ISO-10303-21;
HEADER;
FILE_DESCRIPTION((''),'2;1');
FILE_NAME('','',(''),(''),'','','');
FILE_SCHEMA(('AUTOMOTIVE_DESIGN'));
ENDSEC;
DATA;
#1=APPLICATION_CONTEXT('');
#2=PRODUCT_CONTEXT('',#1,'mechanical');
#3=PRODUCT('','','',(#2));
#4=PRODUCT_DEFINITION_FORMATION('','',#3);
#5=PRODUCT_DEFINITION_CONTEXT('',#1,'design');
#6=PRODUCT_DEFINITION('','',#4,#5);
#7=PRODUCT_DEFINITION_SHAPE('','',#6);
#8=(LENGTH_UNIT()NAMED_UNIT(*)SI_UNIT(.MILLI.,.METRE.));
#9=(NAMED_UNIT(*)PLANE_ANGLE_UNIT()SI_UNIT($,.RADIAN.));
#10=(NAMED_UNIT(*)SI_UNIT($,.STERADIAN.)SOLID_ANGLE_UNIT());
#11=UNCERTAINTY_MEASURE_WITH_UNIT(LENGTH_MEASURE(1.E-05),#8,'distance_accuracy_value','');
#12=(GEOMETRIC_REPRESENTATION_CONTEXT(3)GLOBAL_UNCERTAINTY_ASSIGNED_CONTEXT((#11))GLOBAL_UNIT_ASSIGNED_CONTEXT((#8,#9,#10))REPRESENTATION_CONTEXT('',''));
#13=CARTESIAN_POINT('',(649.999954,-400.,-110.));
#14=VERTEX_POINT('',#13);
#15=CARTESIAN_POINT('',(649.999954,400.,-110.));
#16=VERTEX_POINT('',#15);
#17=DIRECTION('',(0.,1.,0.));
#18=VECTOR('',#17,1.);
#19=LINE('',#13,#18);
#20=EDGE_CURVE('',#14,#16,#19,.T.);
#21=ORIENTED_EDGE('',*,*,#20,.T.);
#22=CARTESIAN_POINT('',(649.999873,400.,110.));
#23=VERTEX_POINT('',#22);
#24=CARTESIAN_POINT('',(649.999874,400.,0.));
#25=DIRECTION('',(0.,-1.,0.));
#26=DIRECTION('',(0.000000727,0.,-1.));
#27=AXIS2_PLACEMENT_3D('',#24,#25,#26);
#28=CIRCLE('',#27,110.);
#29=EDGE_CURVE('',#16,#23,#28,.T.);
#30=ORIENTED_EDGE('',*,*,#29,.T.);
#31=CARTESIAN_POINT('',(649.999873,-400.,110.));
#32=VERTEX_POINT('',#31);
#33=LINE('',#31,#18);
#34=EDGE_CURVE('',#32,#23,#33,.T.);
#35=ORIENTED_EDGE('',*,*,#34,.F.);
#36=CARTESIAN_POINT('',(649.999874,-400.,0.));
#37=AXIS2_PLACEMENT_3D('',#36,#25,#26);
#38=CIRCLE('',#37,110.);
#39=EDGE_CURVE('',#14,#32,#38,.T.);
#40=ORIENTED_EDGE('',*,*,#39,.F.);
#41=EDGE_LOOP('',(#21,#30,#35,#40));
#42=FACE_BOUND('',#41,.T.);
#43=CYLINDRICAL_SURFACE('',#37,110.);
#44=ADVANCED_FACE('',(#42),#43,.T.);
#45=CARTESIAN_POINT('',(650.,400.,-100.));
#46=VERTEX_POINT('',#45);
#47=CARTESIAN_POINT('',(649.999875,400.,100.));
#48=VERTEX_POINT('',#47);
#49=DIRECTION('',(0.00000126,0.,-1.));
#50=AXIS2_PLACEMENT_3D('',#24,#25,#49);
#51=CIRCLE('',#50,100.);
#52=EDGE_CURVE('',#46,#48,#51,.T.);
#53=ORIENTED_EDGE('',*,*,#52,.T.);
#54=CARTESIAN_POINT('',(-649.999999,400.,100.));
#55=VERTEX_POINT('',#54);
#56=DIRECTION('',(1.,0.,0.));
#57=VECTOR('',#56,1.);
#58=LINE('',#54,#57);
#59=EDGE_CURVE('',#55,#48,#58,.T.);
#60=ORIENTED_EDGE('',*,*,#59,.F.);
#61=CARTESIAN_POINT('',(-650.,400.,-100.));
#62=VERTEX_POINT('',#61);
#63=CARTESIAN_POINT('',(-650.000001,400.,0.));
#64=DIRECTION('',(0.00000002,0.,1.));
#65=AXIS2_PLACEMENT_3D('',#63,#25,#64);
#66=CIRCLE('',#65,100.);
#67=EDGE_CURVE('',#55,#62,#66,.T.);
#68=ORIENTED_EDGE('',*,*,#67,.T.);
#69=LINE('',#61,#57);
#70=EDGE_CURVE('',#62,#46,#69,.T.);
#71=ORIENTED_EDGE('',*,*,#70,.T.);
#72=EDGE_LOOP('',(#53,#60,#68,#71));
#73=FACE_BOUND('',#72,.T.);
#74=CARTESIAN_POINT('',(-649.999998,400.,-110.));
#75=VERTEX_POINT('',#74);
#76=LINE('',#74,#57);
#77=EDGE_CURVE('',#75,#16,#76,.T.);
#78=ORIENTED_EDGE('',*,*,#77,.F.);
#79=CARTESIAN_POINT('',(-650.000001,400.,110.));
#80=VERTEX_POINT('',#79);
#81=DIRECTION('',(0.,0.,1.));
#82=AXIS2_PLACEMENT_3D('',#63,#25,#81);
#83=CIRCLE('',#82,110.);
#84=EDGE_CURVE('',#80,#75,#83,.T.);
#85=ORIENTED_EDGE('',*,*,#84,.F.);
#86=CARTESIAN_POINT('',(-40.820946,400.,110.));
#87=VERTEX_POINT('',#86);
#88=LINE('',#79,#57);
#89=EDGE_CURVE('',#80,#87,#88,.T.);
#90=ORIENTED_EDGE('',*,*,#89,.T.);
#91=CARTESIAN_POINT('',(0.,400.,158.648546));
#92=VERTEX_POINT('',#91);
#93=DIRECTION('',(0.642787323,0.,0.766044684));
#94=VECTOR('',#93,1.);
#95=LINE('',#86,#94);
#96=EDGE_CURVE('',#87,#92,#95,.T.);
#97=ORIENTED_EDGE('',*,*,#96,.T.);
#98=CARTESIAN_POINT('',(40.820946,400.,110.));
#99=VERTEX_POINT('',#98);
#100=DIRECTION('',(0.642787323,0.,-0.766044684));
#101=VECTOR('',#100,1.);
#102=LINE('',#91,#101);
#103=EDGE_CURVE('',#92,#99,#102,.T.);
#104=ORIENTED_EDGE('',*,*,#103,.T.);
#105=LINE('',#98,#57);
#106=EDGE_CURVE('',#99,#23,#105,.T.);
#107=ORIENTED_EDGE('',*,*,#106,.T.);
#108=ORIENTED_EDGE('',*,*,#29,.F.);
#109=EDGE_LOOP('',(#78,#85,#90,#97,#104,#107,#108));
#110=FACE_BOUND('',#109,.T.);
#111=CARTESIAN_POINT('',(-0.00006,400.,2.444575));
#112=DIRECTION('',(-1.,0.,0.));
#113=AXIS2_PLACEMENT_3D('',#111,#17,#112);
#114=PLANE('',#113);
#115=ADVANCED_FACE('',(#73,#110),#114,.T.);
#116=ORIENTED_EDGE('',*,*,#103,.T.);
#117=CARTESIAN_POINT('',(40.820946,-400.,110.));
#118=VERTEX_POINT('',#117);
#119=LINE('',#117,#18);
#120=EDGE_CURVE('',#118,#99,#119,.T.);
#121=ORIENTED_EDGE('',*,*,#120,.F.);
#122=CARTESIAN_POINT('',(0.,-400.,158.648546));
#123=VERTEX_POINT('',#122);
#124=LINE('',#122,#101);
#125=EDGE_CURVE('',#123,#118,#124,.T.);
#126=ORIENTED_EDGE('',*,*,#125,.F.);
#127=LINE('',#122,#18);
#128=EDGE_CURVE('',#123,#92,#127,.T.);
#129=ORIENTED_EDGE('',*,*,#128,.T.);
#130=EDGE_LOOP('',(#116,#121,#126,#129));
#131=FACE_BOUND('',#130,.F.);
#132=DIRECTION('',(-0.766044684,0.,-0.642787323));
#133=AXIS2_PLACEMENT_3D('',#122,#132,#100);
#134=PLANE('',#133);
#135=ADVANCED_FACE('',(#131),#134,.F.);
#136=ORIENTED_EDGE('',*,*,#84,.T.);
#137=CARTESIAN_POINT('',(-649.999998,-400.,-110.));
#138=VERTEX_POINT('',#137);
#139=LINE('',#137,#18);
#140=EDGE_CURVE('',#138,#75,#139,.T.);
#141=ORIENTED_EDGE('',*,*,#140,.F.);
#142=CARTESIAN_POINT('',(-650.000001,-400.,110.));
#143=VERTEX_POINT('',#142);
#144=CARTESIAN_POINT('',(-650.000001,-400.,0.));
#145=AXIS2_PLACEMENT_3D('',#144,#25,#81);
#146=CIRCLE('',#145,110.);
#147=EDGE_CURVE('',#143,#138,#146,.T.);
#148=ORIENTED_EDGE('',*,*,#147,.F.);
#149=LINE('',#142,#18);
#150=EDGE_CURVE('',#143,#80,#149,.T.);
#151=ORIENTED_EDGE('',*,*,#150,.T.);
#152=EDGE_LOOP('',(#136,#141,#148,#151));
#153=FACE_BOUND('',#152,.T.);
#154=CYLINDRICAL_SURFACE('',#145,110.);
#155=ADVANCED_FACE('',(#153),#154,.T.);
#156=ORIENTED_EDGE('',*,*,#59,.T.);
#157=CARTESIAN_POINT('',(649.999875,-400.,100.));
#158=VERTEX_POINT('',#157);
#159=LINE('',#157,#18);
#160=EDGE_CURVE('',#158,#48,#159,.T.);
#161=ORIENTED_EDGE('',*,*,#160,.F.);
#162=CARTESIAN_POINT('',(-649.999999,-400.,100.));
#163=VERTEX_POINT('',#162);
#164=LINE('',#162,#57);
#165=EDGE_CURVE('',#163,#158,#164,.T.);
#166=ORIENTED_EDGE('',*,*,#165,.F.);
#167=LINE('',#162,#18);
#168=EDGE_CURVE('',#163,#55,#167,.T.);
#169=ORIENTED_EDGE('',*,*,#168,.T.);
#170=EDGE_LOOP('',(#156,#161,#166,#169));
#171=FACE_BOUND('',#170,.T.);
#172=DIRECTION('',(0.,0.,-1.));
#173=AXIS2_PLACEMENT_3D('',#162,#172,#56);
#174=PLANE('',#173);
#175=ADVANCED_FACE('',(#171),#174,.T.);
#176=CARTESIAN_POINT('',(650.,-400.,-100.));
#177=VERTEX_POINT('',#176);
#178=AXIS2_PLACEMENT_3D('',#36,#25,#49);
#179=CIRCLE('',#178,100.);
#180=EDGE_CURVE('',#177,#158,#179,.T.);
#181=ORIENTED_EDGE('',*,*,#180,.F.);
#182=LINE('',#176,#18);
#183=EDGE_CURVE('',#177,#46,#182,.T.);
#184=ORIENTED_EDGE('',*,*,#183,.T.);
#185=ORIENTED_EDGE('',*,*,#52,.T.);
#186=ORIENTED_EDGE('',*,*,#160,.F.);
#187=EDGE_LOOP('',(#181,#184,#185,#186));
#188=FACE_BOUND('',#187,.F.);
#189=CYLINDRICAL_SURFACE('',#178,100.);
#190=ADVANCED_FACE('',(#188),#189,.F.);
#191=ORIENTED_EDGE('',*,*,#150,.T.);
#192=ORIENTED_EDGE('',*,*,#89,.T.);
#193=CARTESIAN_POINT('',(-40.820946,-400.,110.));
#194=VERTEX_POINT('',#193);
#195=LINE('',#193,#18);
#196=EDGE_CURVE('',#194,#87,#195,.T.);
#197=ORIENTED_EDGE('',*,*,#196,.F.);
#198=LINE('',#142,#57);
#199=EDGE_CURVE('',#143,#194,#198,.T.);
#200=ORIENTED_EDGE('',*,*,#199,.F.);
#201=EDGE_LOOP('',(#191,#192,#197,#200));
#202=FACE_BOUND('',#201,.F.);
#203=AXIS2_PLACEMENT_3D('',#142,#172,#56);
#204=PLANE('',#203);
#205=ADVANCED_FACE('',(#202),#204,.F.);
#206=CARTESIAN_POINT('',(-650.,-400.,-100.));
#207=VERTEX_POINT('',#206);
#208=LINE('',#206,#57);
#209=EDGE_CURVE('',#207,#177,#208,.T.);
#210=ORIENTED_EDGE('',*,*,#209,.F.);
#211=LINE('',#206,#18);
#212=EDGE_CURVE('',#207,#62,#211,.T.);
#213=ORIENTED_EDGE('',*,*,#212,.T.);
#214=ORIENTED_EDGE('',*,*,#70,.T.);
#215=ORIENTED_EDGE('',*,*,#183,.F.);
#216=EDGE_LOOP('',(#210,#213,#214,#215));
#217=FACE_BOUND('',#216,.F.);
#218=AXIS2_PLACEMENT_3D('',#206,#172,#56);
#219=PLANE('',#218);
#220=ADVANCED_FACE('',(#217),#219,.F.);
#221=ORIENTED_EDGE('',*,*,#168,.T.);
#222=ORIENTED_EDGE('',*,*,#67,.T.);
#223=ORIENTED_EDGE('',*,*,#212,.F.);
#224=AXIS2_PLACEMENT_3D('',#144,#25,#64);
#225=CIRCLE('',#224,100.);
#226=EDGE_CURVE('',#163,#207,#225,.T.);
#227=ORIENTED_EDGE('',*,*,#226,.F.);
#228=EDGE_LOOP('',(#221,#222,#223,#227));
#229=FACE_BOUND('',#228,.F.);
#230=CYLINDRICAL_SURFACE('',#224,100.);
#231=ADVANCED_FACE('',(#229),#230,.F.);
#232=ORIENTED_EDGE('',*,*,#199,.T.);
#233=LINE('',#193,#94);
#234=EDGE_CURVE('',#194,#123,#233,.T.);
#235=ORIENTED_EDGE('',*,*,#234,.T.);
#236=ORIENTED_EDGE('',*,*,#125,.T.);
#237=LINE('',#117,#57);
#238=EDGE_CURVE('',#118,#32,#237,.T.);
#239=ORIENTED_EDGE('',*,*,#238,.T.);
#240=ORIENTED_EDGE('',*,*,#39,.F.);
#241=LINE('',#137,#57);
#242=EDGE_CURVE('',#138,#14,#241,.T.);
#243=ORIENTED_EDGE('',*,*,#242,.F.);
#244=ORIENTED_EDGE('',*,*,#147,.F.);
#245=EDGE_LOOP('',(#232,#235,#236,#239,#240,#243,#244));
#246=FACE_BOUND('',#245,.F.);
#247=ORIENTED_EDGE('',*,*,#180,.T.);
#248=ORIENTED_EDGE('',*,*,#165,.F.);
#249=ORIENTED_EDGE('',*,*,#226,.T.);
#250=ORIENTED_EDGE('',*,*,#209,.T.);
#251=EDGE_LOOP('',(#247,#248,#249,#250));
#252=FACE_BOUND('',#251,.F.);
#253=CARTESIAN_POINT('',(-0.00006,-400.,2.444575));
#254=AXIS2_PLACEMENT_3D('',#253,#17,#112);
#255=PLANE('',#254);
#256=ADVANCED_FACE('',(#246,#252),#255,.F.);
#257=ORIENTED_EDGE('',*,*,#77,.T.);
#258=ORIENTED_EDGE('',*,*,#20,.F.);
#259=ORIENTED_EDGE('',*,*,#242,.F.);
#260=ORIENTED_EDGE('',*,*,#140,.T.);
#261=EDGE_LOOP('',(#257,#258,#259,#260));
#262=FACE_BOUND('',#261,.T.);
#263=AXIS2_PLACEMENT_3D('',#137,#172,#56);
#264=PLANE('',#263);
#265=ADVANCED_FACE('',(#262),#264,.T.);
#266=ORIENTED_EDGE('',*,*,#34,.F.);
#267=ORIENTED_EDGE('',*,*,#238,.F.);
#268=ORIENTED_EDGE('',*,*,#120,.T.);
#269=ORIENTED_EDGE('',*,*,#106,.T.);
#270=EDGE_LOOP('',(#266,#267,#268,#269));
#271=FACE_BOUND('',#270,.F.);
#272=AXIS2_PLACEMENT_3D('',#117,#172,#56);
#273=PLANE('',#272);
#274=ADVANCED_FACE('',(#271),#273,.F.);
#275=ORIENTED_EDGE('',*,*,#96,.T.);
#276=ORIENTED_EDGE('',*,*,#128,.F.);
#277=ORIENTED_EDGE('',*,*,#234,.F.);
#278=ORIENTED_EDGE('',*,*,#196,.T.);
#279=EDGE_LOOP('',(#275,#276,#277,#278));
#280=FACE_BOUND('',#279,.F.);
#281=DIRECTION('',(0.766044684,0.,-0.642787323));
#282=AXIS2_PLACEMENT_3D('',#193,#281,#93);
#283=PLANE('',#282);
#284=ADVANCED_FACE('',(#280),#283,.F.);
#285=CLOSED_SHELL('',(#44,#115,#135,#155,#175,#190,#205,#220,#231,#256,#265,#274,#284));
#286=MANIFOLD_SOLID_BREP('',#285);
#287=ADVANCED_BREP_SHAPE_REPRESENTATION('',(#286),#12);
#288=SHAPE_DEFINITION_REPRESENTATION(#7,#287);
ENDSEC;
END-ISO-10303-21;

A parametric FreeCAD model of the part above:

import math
import FreeCAD as App
import Part
import Sketcher
Q = App.Units.Quantity

doc = App.newDocument("Part")
body = doc.addObject("PartDesign::Body", "Body")

# Sketch on XZ plane
sketch1 = body.newObject("Sketcher::SketchObject", "Sketch")
sketch1.AttachmentSupport = (doc.getObject("XZ_Plane"), [""])
sketch1.MapMode = "FlatFace"
sketch1.AttachmentOffset = App.Placement(App.Vector(0, 0, 400), App.Rotation())
sketch1.addGeometry([
    Part.LineSegment(App.Vector(-40.820946, 110, 0), App.Vector(-650.000001, 110, 0)),  # 0
    Part.ArcOfCircle(Part.Circle(App.Vector(-650.000001, 0, 0), App.Vector(0, 0, 1), 110), math.radians(90), math.radians(270.000002)),  # 1
    Part.LineSegment(App.Vector(-649.999998, -110, 0), App.Vector(649.999954, -110, 0)),  # 2
    Part.ArcOfCircle(Part.Circle(App.Vector(649.999874, 0, 0), App.Vector(0, 0, 1), 110), math.radians(-89.999958), math.radians(90.000001)),  # 3
    Part.LineSegment(App.Vector(649.999873, 110, 0), App.Vector(40.820946, 110, 0)),  # 4
    Part.LineSegment(App.Vector(40.820946, 110, 0), App.Vector(0, 158.648546, 0)),  # 5
    Part.LineSegment(App.Vector(0, 158.648546, 0), App.Vector(-40.820946, 110, 0)),  # 6
    Part.LineSegment(App.Vector(-649.999999, 100, 0), App.Vector(649.999875, 100, 0)),  # 7
    Part.ArcOfCircle(Part.Circle(App.Vector(649.999874, 0, 0), App.Vector(0, 0, 1), 100), math.radians(-89.999928), math.radians(89.999999)),  # 8
    Part.LineSegment(App.Vector(650, -100, 0), App.Vector(-650, -100, 0)),  # 9
    Part.ArcOfCircle(Part.Circle(App.Vector(-650.000001, 0, 0), App.Vector(0, 0, 1), 100), math.radians(89.999999), math.radians(270.000001)),  # 10
], False)
sketch1.addConstraint([
    Sketcher.Constraint("Coincident", 0, 2, 1, 1),
    Sketcher.Constraint("Coincident", 1, 2, 2, 1),
    Sketcher.Constraint("Coincident", 2, 2, 3, 1),
    Sketcher.Constraint("Coincident", 3, 2, 4, 1),
    Sketcher.Constraint("Coincident", 4, 2, 5, 1),
    Sketcher.Constraint("Coincident", 5, 2, 6, 1),
    Sketcher.Constraint("Coincident", 6, 2, 0, 1),
    Sketcher.Constraint("Coincident", 7, 2, 8, 2),
    Sketcher.Constraint("Coincident", 8, 1, 9, 1),
    Sketcher.Constraint("Coincident", 9, 2, 10, 2),
    Sketcher.Constraint("Coincident", 10, 1, 7, 1),
    Sketcher.Constraint("Horizontal", 0),
    Sketcher.Constraint("Horizontal", 2),
    Sketcher.Constraint("Horizontal", 4),
    Sketcher.Constraint("Horizontal", 7),
    Sketcher.Constraint("Horizontal", 9),
    Sketcher.Constraint("Coincident", 8, 3, 3, 3),
    Sketcher.Constraint("Coincident", 10, 3, 1, 3),
    Sketcher.Constraint("PointOnObject", 1, 3, -1),
    Sketcher.Constraint("PointOnObject", 5, 2, -2),
    Sketcher.Constraint("Radius", 1, Q("110 mm")),
    Sketcher.Constraint("Radius", 8, Q("100 mm")),
    Sketcher.Constraint("DistanceX", 9, 2, 9, 1, Q("1300 mm")),
    Sketcher.Constraint("DistanceX", 1, 3, -1, 1, Q("650.000001 mm")),
    Sketcher.Constraint("DistanceX", 0, 2, -1, 1, Q("650.000001 mm")),
    Sketcher.Constraint("DistanceX", 1, 2, -1, 1, Q("649.999998 mm")),
    Sketcher.Constraint("DistanceX", -1, 1, 8, 1, Q("650 mm")),
    Sketcher.Constraint("DistanceX", 10, 1, -1, 1, Q("649.999999 mm")),
    Sketcher.Constraint("DistanceX", 0, 2, 0, 1, Q("609.179055 mm")),
    Sketcher.Constraint("DistanceX", 2, 1, 2, 2, Q("1299.999952 mm")),
    Sketcher.Constraint("DistanceX", 4, 2, 4, 1, Q("609.178927 mm")),
    Sketcher.Constraint("DistanceX", 7, 1, 7, 2, Q("1299.999874 mm")),
    Sketcher.Constraint("DistanceX", 1, 2, 3, 3, Q("1299.999872 mm")),
    Sketcher.Constraint("DistanceX", 4, 2, 2, 2, Q("609.179008 mm")),
    Sketcher.Constraint("Distance", 5, Q("63.506147 mm")),
])
pad1 = body.newObject("PartDesign::Pad", "Pad")
pad1.Profile = sketch1
pad1.Length = 800
pad1.Reversed = True

doc.recompute()
